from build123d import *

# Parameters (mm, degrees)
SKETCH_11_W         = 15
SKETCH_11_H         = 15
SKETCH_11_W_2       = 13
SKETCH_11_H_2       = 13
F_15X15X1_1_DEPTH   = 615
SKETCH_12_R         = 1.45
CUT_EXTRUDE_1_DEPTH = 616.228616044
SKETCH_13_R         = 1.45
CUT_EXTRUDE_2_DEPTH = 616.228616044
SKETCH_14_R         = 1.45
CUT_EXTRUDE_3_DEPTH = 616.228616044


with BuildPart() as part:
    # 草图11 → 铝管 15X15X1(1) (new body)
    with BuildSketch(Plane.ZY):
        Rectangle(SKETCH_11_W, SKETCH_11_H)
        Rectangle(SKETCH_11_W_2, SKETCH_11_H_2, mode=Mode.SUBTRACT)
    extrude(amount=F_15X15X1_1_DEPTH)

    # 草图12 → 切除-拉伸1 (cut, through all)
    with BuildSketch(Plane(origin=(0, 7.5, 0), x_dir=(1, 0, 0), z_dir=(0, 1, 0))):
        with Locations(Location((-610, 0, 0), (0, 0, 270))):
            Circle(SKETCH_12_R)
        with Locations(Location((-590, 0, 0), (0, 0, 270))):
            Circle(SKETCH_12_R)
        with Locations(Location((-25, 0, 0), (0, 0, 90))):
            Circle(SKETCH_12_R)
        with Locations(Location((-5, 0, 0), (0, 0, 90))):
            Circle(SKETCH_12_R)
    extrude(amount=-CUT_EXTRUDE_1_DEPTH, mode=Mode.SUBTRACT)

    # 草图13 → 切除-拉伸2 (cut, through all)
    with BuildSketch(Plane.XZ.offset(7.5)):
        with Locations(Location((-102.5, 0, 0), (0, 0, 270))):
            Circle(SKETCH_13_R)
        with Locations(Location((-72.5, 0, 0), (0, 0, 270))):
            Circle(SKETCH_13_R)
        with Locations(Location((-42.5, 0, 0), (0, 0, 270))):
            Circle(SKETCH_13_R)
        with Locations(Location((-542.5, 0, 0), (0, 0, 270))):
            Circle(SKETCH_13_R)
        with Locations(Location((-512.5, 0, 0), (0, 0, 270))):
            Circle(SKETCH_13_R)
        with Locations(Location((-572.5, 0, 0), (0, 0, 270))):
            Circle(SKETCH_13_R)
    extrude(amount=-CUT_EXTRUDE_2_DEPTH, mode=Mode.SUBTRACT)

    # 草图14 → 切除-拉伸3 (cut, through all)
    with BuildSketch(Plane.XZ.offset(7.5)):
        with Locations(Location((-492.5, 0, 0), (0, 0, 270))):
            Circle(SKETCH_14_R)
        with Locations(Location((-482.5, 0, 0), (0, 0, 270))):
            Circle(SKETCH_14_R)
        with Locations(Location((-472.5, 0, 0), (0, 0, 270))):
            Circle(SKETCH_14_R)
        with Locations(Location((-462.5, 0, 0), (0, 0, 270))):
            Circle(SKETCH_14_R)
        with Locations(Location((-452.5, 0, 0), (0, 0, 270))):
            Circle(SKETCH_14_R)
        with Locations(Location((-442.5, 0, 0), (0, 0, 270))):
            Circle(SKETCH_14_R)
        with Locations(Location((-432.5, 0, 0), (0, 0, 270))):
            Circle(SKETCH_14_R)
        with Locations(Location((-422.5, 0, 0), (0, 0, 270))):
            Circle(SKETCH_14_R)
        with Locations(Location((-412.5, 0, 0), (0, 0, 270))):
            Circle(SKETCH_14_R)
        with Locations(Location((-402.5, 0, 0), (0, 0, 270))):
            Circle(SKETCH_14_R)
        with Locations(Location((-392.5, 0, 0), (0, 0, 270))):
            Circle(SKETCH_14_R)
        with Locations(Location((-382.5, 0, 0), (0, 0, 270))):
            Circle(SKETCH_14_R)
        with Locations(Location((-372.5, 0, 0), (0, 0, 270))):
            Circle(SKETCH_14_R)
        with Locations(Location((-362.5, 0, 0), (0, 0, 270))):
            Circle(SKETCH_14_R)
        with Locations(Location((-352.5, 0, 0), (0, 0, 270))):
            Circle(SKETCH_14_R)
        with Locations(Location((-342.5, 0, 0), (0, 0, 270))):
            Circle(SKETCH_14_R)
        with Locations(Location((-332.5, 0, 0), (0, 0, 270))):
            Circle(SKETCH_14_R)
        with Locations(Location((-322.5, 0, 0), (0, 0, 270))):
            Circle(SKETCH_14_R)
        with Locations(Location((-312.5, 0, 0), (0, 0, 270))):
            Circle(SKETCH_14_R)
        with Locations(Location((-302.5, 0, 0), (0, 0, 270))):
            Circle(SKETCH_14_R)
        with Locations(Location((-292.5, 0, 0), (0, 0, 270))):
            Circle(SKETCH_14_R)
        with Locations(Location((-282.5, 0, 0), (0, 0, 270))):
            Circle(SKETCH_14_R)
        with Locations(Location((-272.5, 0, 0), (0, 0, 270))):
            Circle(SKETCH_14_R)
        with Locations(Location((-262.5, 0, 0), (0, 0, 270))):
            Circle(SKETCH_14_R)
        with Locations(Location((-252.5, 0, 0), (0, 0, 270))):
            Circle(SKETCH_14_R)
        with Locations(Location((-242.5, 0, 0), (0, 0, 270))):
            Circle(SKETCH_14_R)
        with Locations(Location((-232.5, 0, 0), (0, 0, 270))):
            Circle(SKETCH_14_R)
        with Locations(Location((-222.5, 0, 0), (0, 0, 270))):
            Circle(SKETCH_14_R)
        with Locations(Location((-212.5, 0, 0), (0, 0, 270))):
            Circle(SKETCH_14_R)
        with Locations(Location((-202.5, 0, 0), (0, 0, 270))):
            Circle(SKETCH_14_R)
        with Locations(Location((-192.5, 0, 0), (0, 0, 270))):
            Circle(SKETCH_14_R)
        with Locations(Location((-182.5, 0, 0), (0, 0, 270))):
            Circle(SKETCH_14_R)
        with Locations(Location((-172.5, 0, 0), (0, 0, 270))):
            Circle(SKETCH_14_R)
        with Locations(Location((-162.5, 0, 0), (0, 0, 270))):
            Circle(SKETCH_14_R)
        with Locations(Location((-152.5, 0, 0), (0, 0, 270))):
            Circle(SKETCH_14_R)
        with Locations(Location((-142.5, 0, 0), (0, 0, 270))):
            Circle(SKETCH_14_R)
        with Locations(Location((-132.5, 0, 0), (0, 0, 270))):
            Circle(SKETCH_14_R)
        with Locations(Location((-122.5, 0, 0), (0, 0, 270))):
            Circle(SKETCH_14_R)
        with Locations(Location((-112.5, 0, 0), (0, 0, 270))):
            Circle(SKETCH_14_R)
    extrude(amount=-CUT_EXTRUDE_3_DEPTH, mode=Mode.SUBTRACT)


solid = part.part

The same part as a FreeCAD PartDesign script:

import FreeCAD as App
import Part
import Sketcher
Q = App.Units.Quantity


def add_polygon(sketch, points):
    """Adds a closed chain of lines whose ends are joined by coincident constraints."""
    first, n = sketch.GeometryCount, len(points)
    for a, b in zip(points, points[1:] + points[:1]):
        sketch.addGeometry(Part.LineSegment(App.Vector(*a, 0), App.Vector(*b, 0)), False)
    for i in range(n):
        sketch.addConstraint(Sketcher.Constraint("Coincident", first + i, 2, first + (i + 1) % n, 1))

doc = App.newDocument("Part")
body = doc.addObject("PartDesign::Body", "Body")

# Sketch on YZ plane
sketch1 = body.newObject("Sketcher::SketchObject", "Sketch")
sketch1.AttachmentSupport = (doc.getObject("YZ_Plane"), [""])
sketch1.MapMode = "FlatFace"
add_polygon(sketch1, [(8, -8), (-8, -8), (-8, 8), (8, 8)])  # lines 0-3
add_polygon(sketch1, [(-6, 6), (-6, -6), (6, -6), (6, 6)])  # lines 4-7
sketch1.addConstraint(Sketcher.Constraint("Horizontal", 0))
sketch1.addConstraint(Sketcher.Constraint("Vertical", 1))
sketch1.addConstraint(Sketcher.Constraint("Horizontal", 2))
sketch1.addConstraint(Sketcher.Constraint("Vertical", 3))
sketch1.addConstraint(Sketcher.Constraint("Vertical", 4))
sketch1.addConstraint(Sketcher.Constraint("Horizontal", 5))
sketch1.addConstraint(Sketcher.Constraint("Vertical", 6))
sketch1.addConstraint(Sketcher.Constraint("Horizontal", 7))
sketch1.addConstraint(Sketcher.Constraint("Symmetric", 0, 2, 2, 2, -1, 1))
sketch1.addConstraint(Sketcher.Constraint("Symmetric", 4, 2, 6, 2, -1, 1))
sketch1.addConstraint(Sketcher.Constraint("Equal", 2, 1))
sketch1.addConstraint(Sketcher.Constraint("Equal", 7, 4))
sketch1.addConstraint(Sketcher.Constraint("DistanceX", 0, 2, 0, 1, Q("15 mm")))
sketch1.addConstraint(Sketcher.Constraint("DistanceX", 5, 1, 5, 2, Q("13 mm")))
pad1 = body.newObject("PartDesign::Pad", "Pad")
pad1.Profile = sketch1
pad1.Length = 615
pad1.Reversed = True

# Sketch on XZ plane
sketch2 = body.newObject("Sketcher::SketchObject", "Sketch001")
sketch2.AttachmentSupport = (doc.getObject("XZ_Plane"), [""])
sketch2.MapMode = "FlatFace"
sketch2.AttachmentOffset = App.Placement(App.Vector(0, 0, -7.5), App.Rotation())
sketch2.addGeometry(Part.Circle(App.Vector(-610, 0, 0), App.Vector(0, 0, 1), 1.4), False)
sketch2.addGeometry(Part.Circle(App.Vector(-590, 0, 0), App.Vector(0, 0, 1), 1.4), False)
sketch2.addGeometry(Part.Circle(App.Vector(-25, 0, 0), App.Vector(0, 0, 1), 1.4), False)
sketch2.addGeometry(Part.Circle(App.Vector(-5, 0, 0), App.Vector(0, 0, 1), 1.4), False)
sketch2.addConstraint(Sketcher.Constraint("Equal", 0, 1))
sketch2.addConstraint(Sketcher.Constraint("Equal", 1, 2))
sketch2.addConstraint(Sketcher.Constraint("Equal", 2, 3))
sketch2.addConstraint(Sketcher.Constraint("PointOnObject", 0, 3, -1))
sketch2.addConstraint(Sketcher.Constraint("PointOnObject", 1, 3, -1))
sketch2.addConstraint(Sketcher.Constraint("PointOnObject", 2, 3, -1))
sketch2.addConstraint(Sketcher.Constraint("PointOnObject", 3, 3, -1))
sketch2.addConstraint(Sketcher.Constraint("Diameter", 0, Q("2.9 mm")))
sketch2.addConstraint(Sketcher.Constraint("DistanceX", 0, 3, -1, 1, Q("610 mm")))
sketch2.addConstraint(Sketcher.Constraint("DistanceX", 1, 3, -1, 1, Q("590 mm")))
sketch2.addConstraint(Sketcher.Constraint("DistanceX", 2, 3, -1, 1, Q("25 mm")))
sketch2.addConstraint(Sketcher.Constraint("DistanceX", 3, 3, -1, 1, Q("5 mm")))
pocket1 = body.newObject("PartDesign::Pocket", "Pocket")
pocket1.Profile = sketch2
pocket1.Type = "ThroughAll"
pocket1.Reversed = True

# Sketch on XZ plane
sketch3 = body.newObject("Sketcher::SketchObject", "Sketch002")
sketch3.AttachmentSupport = (doc.getObject("XZ_Plane"), [""])
sketch3.MapMode = "FlatFace"
sketch3.AttachmentOffset = App.Placement(App.Vector(0, 0, 7.5), App.Rotation())
sketch3.addGeometry(Part.Circle(App.Vector(-102.5, 0, 0), App.Vector(0, 0, 1), 1.4), False)
sketch3.addGeometry(Part.Circle(App.Vector(-72.5, 0, 0), App.Vector(0, 0, 1), 1.4), False)
sketch3.addGeometry(Part.Circle(App.Vector(-42.5, 0, 0), App.Vector(0, 0, 1), 1.4), False)
sketch3.addGeometry(Part.Circle(App.Vector(-542.5, 0, 0), App.Vector(0, 0, 1), 1.4), False)
sketch3.addGeometry(Part.Circle(App.Vector(-512.5, 0, 0), App.Vector(0, 0, 1), 1.4), False)
sketch3.addGeometry(Part.Circle(App.Vector(-572.5, 0, 0), App.Vector(0, 0, 1), 1.4), False)
sketch3.addConstraint(Sketcher.Constraint("Equal", 0, 1))
sketch3.addConstraint(Sketcher.Constraint("Equal", 1, 2))
sketch3.addConstraint(Sketcher.Constraint("Equal", 2, 3))
sketch3.addConstraint(Sketcher.Constraint("Equal", 3, 4))
sketch3.addConstraint(Sketcher.Constraint("Equal", 4, 5))
sketch3.addConstraint(Sketcher.Constraint("PointOnObject", 0, 3, -1))
sketch3.addConstraint(Sketcher.Constraint("PointOnObject", 1, 3, -1))
sketch3.addConstraint(Sketcher.Constraint("PointOnObject", 2, 3, -1))
sketch3.addConstraint(Sketcher.Constraint("PointOnObject", 3, 3, -1))
sketch3.addConstraint(Sketcher.Constraint("PointOnObject", 4, 3, -1))
sketch3.addConstraint(Sketcher.Constraint("PointOnObject", 5, 3, -1))
sketch3.addConstraint(Sketcher.Constraint("Diameter", 0, Q("2.9 mm")))
sketch3.addConstraint(Sketcher.Constraint("DistanceX", 0, 3, 1, 3, Q("30 mm")))
sketch3.addConstraint(Sketcher.Constraint("DistanceX", 1, 3, 2, 3, Q("30 mm")))
sketch3.addConstraint(Sketcher.Constraint("DistanceX", 3, 3, 0, 3, Q("440 mm")))
sketch3.addConstraint(Sketcher.Constraint("DistanceX", 3, 3, 4, 3, Q("30 mm")))
sketch3.addConstraint(Sketcher.Constraint("DistanceX", 5, 3, 3, 3, Q("30 mm")))
sketch3.addConstraint(Sketcher.Constraint("DistanceX", 0, 3, -1, 1, Q("102.5 mm")))
pocket2 = body.newObject("PartDesign::Pocket", "Pocket001")
pocket2.Profile = sketch3
pocket2.Type = "ThroughAll"

# Sketch on XZ plane
sketch4 = body.newObject("Sketcher::SketchObject", "Sketch003")
sketch4.AttachmentSupport = (doc.getObject("XZ_Plane"), [""])
sketch4.MapMode = "FlatFace"
sketch4.AttachmentOffset = App.Placement(App.Vector(0, 0, 7.5), App.Rotation())
sketch4.addGeometry(Part.Circle(App.Vector(-492.5, 0, 0), App.Vector(0, 0, 1), 1.4), False)
sketch4.addGeometry(Part.Circle(App.Vector(-482.5, 0, 0), App.Vector(0, 0, 1), 1.4), False)
sketch4.addGeometry(Part.Circle(App.Vector(-472.5, 0, 0), App.Vector(0, 0, 1), 1.4), False)
sketch4.addGeometry(Part.Circle(App.Vector(-462.5, 0, 0), App.Vector(0, 0, 1), 1.4), False)
sketch4.addGeometry(Part.Circle(App.Vector(-452.5, 0, 0), App.Vector(0, 0, 1), 1.4), False)
sketch4.addGeometry(Part.Circle(App.Vector(-442.5, 0, 0), App.Vector(0, 0, 1), 1.4), False)
sketch4.addGeometry(Part.Circle(App.Vector(-432.5, 0, 0), App.Vector(0, 0, 1), 1.4), False)
sketch4.addGeometry(Part.Circle(App.Vector(-422.5, 0, 0), App.Vector(0, 0, 1), 1.4), False)
sketch4.addGeometry(Part.Circle(App.Vector(-412.5, 0, 0), App.Vector(0, 0, 1), 1.4), False)
sketch4.addGeometry(Part.Circle(App.Vector(-402.5, 0, 0), App.Vector(0, 0, 1), 1.4), False)
sketch4.addGeometry(Part.Circle(App.Vector(-392.5, 0, 0), App.Vector(0, 0, 1), 1.4), False)
sketch4.addGeometry(Part.Circle(App.Vector(-382.5, 0, 0), App.Vector(0, 0, 1), 1.4), False)
sketch4.addGeometry(Part.Circle(App.Vector(-372.5, 0, 0), App.Vector(0, 0, 1), 1.4), False)
sketch4.addGeometry(Part.Circle(App.Vector(-362.5, 0, 0), App.Vector(0, 0, 1), 1.4), False)
sketch4.addGeometry(Part.Circle(App.Vector(-352.5, 0, 0), App.Vector(0, 0, 1), 1.4), False)
sketch4.addGeometry(Part.Circle(App.Vector(-342.5, 0, 0), App.Vector(0, 0, 1), 1.4), False)
sketch4.addGeometry(Part.Circle(App.Vector(-332.5, 0, 0), App.Vector(0, 0, 1), 1.4), False)
sketch4.addGeometry(Part.Circle(App.Vector(-322.5, 0, 0), App.Vector(0, 0, 1), 1.4), False)
sketch4.addGeometry(Part.Circle(App.Vector(-312.5, 0, 0), App.Vector(0, 0, 1), 1.4), False)
sketch4.addGeometry(Part.Circle(App.Vector(-302.5, 0, 0), App.Vector(0, 0, 1), 1.4), False)
sketch4.addGeometry(Part.Circle(App.Vector(-292.5, 0, 0), App.Vector(0, 0, 1), 1.4), False)
sketch4.addGeometry(Part.Circle(App.Vector(-282.5, 0, 0), App.Vector(0, 0, 1), 1.4), False)
sketch4.addGeometry(Part.Circle(App.Vector(-272.5, 0, 0), App.Vector(0, 0, 1), 1.4), False)
sketch4.addGeometry(Part.Circle(App.Vector(-262.5, 0, 0), App.Vector(0, 0, 1), 1.4), False)
sketch4.addGeometry(Part.Circle(App.Vector(-252.5, 0, 0), App.Vector(0, 0, 1), 1.4), False)
sketch4.addGeometry(Part.Circle(App.Vector(-242.5, 0, 0), App.Vector(0, 0, 1), 1.4), False)
sketch4.addGeometry(Part.Circle(App.Vector(-232.5, 0, 0), App.Vector(0, 0, 1), 1.4), False)
sketch4.addGeometry(Part.Circle(App.Vector(-222.5, 0, 0), App.Vector(0, 0, 1), 1.4), False)
sketch4.addGeometry(Part.Circle(App.Vector(-212.5, 0, 0), App.Vector(0, 0, 1), 1.4), False)
sketch4.addGeometry(Part.Circle(App.Vector(-202.5, 0, 0), App.Vector(0, 0, 1), 1.4), False)
sketch4.addGeometry(Part.Circle(App.Vector(-192.5, 0, 0), App.Vector(0, 0, 1), 1.4), False)
sketch4.addGeometry(Part.Circle(App.Vector(-182.5, 0, 0), App.Vector(0, 0, 1), 1.4), False)
sketch4.addGeometry(Part.Circle(App.Vector(-172.5, 0, 0), App.Vector(0, 0, 1), 1.4), False)
sketch4.addGeometry(Part.Circle(App.Vector(-162.5, 0, 0), App.Vector(0, 0, 1), 1.4), False)
sketch4.addGeometry(Part.Circle(App.Vector(-152.5, 0, 0), App.Vector(0, 0, 1), 1.4), False)
sketch4.addGeometry(Part.Circle(App.Vector(-142.5, 0, 0), App.Vector(0, 0, 1), 1.4), False)
sketch4.addGeometry(Part.Circle(App.Vector(-132.5, 0, 0), App.Vector(0, 0, 1), 1.4), False)
sketch4.addGeometry(Part.Circle(App.Vector(-122.5, 0, 0), App.Vector(0, 0, 1), 1.4), False)
sketch4.addGeometry(Part.Circle(App.Vector(-112.5, 0, 0), App.Vector(0, 0, 1), 1.4), False)
sketch4.addConstraint(Sketcher.Constraint("Equal", 0, 1))
sketch4.addConstraint(Sketcher.Constraint("Equal", 1, 2))
sketch4.addConstraint(Sketcher.Constraint("Equal", 2, 3))
sketch4.addConstraint(Sketcher.Constraint("Equal", 3, 4))
sketch4.addConstraint(Sketcher.Constraint("Equal", 4, 5))
sketch4.addConstraint(Sketcher.Constraint("Equal", 5, 6))
sketch4.addConstraint(Sketcher.Constraint("Equal", 6, 7))
sketch4.addConstraint(Sketcher.Constraint("Equal", 7, 8))
sketch4.addConstraint(Sketcher.Constraint("Equal", 8, 9))
sketch4.addConstraint(Sketcher.Constraint("Equal", 9, 10))
sketch4.addConstraint(Sketcher.Constraint("Equal", 10, 11))
sketch4.addConstraint(Sketcher.Constraint("Equal", 11, 12))
sketch4.addConstraint(Sketcher.Constraint("Equal", 12, 13))
sketch4.addConstraint(Sketcher.Constraint("Equal", 13, 14))
sketch4.addConstraint(Sketcher.Constraint("Equal", 14, 15))
sketch4.addConstraint(Sketcher.Constraint("Equal", 15, 16))
sketch4.addConstraint(Sketcher.Constraint("Equal", 16, 17))
sketch4.addConstraint(Sketcher.Constraint("Equal", 17, 18))
sketch4.addConstraint(Sketcher.Constraint("Equal", 18, 19))
sketch4.addConstraint(Sketcher.Constraint("Equal", 19, 20))
sketch4.addConstraint(Sketcher.Constraint("Equal", 20, 21))
sketch4.addConstraint(Sketcher.Constraint("Equal", 21, 22))
sketch4.addConstraint(Sketcher.Constraint("Equal", 22, 23))
sketch4.addConstraint(Sketcher.Constraint("Equal", 23, 24))
sketch4.addConstraint(Sketcher.Constraint("Equal", 24, 25))
sketch4.addConstraint(Sketcher.Constraint("Equal", 25, 26))
sketch4.addConstraint(Sketcher.Constraint("Equal", 26, 27))
sketch4.addConstraint(Sketcher.Constraint("Equal", 27, 28))
sketch4.addConstraint(Sketcher.Constraint("Equal", 28, 29))
sketch4.addConstraint(Sketcher.Constraint("Equal", 29, 30))
sketch4.addConstraint(Sketcher.Constraint("Equal", 30, 31))
sketch4.addConstraint(Sketcher.Constraint("Equal", 31, 32))
sketch4.addConstraint(Sketcher.Constraint("Equal", 32, 33))
sketch4.addConstraint(Sketcher.Constraint("Equal", 33, 34))
sketch4.addConstraint(Sketcher.Constraint("Equal", 34, 35))
sketch4.addConstraint(Sketcher.Constraint("Equal", 35, 36))
sketch4.addConstraint(Sketcher.Constraint("Equal", 36, 37))
sketch4.addConstraint(Sketcher.Constraint("Equal", 37, 38))
sketch4.addConstraint(Sketcher.Constraint("PointOnObject", 0, 3, -1))
sketch4.addConstraint(Sketcher.Constraint("PointOnObject", 1, 3, -1))
sketch4.addConstraint(Sketcher.Constraint("PointOnObject", 2, 3, -1))
sketch4.addConstraint(Sketcher.Constraint("PointOnObject", 3, 3, -1))
sketch4.addConstraint(Sketcher.Constraint("PointOnObject", 4, 3, -1))
sketch4.addConstraint(Sketcher.Constraint("PointOnObject", 5, 3, -1))
sketch4.addConstraint(Sketcher.Constraint("PointOnObject", 6, 3, -1))
sketch4.addConstraint(Sketcher.Constraint("PointOnObject", 7, 3, -1))
sketch4.addConstraint(Sketcher.Constraint("PointOnObject", 8, 3, -1))
sketch4.addConstraint(Sketcher.Constraint("PointOnObject", 9, 3, -1))
sketch4.addConstraint(Sketcher.Constraint("PointOnObject", 10, 3, -1))
sketch4.addConstraint(Sketcher.Constraint("PointOnObject", 11, 3, -1))
sketch4.addConstraint(Sketcher.Constraint("PointOnObject", 12, 3, -1))
sketch4.addConstraint(Sketcher.Constraint("PointOnObject", 13, 3, -1))
sketch4.addConstraint(Sketcher.Constraint("PointOnObject", 14, 3, -1))
sketch4.addConstraint(Sketcher.Constraint("PointOnObject", 15, 3, -1))
sketch4.addConstraint(Sketcher.Constraint("PointOnObject", 16, 3, -1))
sketch4.addConstraint(Sketcher.Constraint("PointOnObject", 17, 3, -1))
sketch4.addConstraint(Sketcher.Constraint("PointOnObject", 18, 3, -1))
sketch4.addConstraint(Sketcher.Constraint("PointOnObject", 19, 3, -1))
sketch4.addConstraint(Sketcher.Constraint("PointOnObject", 20, 3, -1))
sketch4.addConstraint(Sketcher.Constraint("PointOnObject", 21, 3, -1))
sketch4.addConstraint(Sketcher.Constraint("PointOnObject", 22, 3, -1))
sketch4.addConstraint(Sketcher.Constraint("PointOnObject", 23, 3, -1))
sketch4.addConstraint(Sketcher.Constraint("PointOnObject", 24, 3, -1))
sketch4.addConstraint(Sketcher.Constraint("PointOnObject", 25, 3, -1))
sketch4.addConstraint(Sketcher.Constraint("PointOnObject", 26, 3, -1))
sketch4.addConstraint(Sketcher.Constraint("PointOnObject", 27, 3, -1))
sketch4.addConstraint(Sketcher.Constraint("PointOnObject", 28, 3, -1))
sketch4.addConstraint(Sketcher.Constraint("PointOnObject", 29, 3, -1))
sketch4.addConstraint(Sketcher.Constraint("PointOnObject", 30, 3, -1))
sketch4.addConstraint(Sketcher.Constraint("PointOnObject", 31, 3, -1))
sketch4.addConstraint(Sketcher.Constraint("PointOnObject", 32, 3, -1))
sketch4.addConstraint(Sketcher.Constraint("PointOnObject", 33, 3, -1))
sketch4.addConstraint(Sketcher.Constraint("PointOnObject", 34, 3, -1))
sketch4.addConstraint(Sketcher.Constraint("PointOnObject", 35, 3, -1))
sketch4.addConstraint(Sketcher.Constraint("PointOnObject", 36, 3, -1))
sketch4.addConstraint(Sketcher.Constraint("PointOnObject", 37, 3, -1))
sketch4.addConstraint(Sketcher.Constraint("PointOnObject", 38, 3, -1))
sketch4.addConstraint(Sketcher.Constraint("Diameter", 0, Q("2.9 mm")))
sketch4.addConstraint(Sketcher.Constraint("DistanceX", 0, 3, 1, 3, Q("10 mm")))
sketch4.addConstraint(Sketcher.Constraint("DistanceX", 1, 3, 2, 3, Q("10 mm")))
sketch4.addConstraint(Sketcher.Constraint("DistanceX", 2, 3, 3, 3, Q("10 mm")))
sketch4.addConstraint(Sketcher.Constraint("DistanceX", 3, 3, 4, 3, Q("10 mm")))
sketch4.addConstraint(Sketcher.Constraint("DistanceX", 4, 3, 5, 3, Q("10 mm")))
sketch4.addConstraint(Sketcher.Constraint("DistanceX", 5, 3, 6, 3, Q("10 mm")))
sketch4.addConstraint(Sketcher.Constraint("DistanceX", 6, 3, 7, 3, Q("10 mm")))
sketch4.addConstraint(Sketcher.Constraint("DistanceX", 7, 3, 8, 3, Q("10 mm")))
sketch4.addConstraint(Sketcher.Constraint("DistanceX", 8, 3, 9, 3, Q("10 mm")))
sketch4.addConstraint(Sketcher.Constraint("DistanceX", 9, 3, 10, 3, Q("10 mm")))
sketch4.addConstraint(Sketcher.Constraint("DistanceX", 10, 3, 11, 3, Q("10 mm")))
sketch4.addConstraint(Sketcher.Constraint("DistanceX", 11, 3, 12, 3, Q("10 mm")))
sketch4.addConstraint(Sketcher.Constraint("DistanceX", 12, 3, 13, 3, Q("10 mm")))
sketch4.addConstraint(Sketcher.Constraint("DistanceX", 13, 3, 14, 3, Q("10 mm")))
sketch4.addConstraint(Sketcher.Constraint("DistanceX", 14, 3, 15, 3, Q("10 mm")))
sketch4.addConstraint(Sketcher.Constraint("DistanceX", 15, 3, 16, 3, Q("10 mm")))
sketch4.addConstraint(Sketcher.Constraint("DistanceX", 16, 3, 17, 3, Q("10 mm")))
sketch4.addConstraint(Sketcher.Constraint("DistanceX", 17, 3, 18, 3, Q("10 mm")))
sketch4.addConstraint(Sketcher.Constraint("DistanceX", 18, 3, 19, 3, Q("10 mm")))
sketch4.addConstraint(Sketcher.Constraint("DistanceX", 19, 3, 20, 3, Q("10 mm")))
sketch4.addConstraint(Sketcher.Constraint("DistanceX", 20, 3, 21, 3, Q("10 mm")))
sketch4.addConstraint(Sketcher.Constraint("DistanceX", 21, 3, 22, 3, Q("10 mm")))
sketch4.addConstraint(Sketcher.Constraint("DistanceX", 22, 3, 23, 3, Q("10 mm")))
sketch4.addConstraint(Sketcher.Constraint("DistanceX", 23, 3, 24, 3, Q("10 mm")))
sketch4.addConstraint(Sketcher.Constraint("DistanceX", 24, 3, 25, 3, Q("10 mm")))
sketch4.addConstraint(Sketcher.Constraint("DistanceX", 25, 3, 26, 3, Q("10 mm")))
sketch4.addConstraint(Sketcher.Constraint("DistanceX", 26, 3, 27, 3, Q("10 mm")))
sketch4.addConstraint(Sketcher.Constraint("DistanceX", 27, 3, 28, 3, Q("10 mm")))
sketch4.addConstraint(Sketcher.Constraint("DistanceX", 28, 3, 29, 3, Q("10 mm")))
sketch4.addConstraint(Sketcher.Constraint("DistanceX", 29, 3, 30, 3, Q("10 mm")))
sketch4.addConstraint(Sketcher.Constraint("DistanceX", 30, 3, 31, 3, Q("10 mm")))
sketch4.addConstraint(Sketcher.Constraint("DistanceX", 31, 3, 32, 3, Q("10 mm")))
sketch4.addConstraint(Sketcher.Constraint("DistanceX", 32, 3, 33, 3, Q("10 mm")))
sketch4.addConstraint(Sketcher.Constraint("DistanceX", 33, 3, 34, 3, Q("10 mm")))
sketch4.addConstraint(Sketcher.Constraint("DistanceX", 34, 3, 35, 3, Q("10 mm")))
sketch4.addConstraint(Sketcher.Constraint("DistanceX", 35, 3, 36, 3, Q("10 mm")))
sketch4.addConstraint(Sketcher.Constraint("DistanceX", 36, 3, 37, 3, Q("10 mm")))
sketch4.addConstraint(Sketcher.Constraint("DistanceX", 37, 3, 38, 3, Q("10 mm")))
sketch4.addConstraint(Sketcher.Constraint("DistanceX", 0, 3, -1, 1, Q("492.5 mm")))
pocket3 = body.newObject("PartDesign::Pocket", "Pocket002")
pocket3.Profile = sketch4
pocket3.Type = "ThroughAll"

doc.recompute()
